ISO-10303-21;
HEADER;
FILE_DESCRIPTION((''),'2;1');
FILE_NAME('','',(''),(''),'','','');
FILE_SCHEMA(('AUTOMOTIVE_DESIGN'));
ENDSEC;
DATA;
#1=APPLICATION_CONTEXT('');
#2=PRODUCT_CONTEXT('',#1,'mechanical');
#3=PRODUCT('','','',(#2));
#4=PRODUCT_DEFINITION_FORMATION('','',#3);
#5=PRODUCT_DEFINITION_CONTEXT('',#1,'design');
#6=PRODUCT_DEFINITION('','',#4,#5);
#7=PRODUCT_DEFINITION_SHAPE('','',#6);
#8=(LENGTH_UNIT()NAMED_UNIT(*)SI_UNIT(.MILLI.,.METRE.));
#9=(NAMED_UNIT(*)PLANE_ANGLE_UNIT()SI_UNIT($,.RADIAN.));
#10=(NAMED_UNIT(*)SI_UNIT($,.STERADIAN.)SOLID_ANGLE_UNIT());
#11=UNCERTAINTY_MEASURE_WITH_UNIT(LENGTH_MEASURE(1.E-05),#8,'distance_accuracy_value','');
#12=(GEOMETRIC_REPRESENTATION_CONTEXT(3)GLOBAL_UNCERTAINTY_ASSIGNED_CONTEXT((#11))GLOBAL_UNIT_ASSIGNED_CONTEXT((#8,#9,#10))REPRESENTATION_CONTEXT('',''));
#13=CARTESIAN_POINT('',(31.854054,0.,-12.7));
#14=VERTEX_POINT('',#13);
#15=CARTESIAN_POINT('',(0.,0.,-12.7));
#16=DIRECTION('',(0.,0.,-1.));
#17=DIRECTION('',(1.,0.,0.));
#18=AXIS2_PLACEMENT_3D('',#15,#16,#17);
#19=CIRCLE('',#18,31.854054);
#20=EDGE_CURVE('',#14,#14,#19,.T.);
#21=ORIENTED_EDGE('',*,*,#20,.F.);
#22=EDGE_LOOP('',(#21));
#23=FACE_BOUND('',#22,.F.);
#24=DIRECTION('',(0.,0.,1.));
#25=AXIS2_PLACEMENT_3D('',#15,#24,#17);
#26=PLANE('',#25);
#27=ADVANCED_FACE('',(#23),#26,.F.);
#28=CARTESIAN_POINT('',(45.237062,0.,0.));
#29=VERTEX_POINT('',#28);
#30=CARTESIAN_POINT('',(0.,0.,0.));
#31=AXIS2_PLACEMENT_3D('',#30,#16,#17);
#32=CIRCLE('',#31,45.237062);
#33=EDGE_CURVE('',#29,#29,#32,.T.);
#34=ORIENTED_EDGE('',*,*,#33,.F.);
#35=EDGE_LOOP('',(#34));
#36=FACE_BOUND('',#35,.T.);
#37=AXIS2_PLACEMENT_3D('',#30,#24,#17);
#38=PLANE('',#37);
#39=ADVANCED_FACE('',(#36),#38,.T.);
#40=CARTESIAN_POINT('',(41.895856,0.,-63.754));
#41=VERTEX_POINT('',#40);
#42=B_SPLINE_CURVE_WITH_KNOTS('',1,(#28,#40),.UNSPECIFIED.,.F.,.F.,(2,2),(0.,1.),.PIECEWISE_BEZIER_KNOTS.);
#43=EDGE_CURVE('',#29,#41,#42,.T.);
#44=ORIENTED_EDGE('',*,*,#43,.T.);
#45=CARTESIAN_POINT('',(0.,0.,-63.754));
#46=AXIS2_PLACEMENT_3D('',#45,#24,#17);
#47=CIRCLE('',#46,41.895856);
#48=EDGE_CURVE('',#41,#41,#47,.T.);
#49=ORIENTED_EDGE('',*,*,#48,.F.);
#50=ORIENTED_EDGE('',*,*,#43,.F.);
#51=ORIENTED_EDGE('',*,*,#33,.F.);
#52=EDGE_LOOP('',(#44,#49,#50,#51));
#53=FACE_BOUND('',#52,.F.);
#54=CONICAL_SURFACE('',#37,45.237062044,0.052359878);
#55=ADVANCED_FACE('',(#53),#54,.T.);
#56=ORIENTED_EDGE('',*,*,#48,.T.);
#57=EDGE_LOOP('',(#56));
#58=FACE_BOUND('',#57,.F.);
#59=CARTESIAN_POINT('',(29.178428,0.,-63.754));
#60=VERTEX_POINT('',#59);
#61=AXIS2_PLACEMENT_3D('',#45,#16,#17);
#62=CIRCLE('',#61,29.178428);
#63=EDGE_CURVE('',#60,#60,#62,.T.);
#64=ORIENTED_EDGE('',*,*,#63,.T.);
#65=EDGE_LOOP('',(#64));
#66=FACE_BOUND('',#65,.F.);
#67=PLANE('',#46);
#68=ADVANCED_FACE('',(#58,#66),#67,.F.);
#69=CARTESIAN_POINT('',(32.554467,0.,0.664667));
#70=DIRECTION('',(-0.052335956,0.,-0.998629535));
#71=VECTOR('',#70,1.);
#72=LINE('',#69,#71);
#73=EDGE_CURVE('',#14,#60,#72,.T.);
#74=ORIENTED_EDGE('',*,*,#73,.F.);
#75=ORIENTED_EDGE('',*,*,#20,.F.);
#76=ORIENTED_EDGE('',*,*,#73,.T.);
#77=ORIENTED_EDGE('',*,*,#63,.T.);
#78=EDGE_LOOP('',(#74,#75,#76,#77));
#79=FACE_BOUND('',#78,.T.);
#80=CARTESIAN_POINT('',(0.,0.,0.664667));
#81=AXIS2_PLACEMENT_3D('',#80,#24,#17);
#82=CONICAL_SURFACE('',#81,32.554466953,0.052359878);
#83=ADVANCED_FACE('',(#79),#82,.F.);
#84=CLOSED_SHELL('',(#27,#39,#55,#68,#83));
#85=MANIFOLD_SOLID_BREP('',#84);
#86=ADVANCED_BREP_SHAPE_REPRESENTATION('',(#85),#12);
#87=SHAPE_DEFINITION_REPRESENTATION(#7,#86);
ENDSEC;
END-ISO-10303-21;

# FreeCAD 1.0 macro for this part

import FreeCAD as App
import Part
import Sketcher
Q = App.Units.Quantity


def faces_at(feature, points):
    """Names of the faces that lie closest to the given points."""
    faces = feature.Shape.Faces
    near = lambda p: min(range(len(faces)), key=lambda i: faces[i].distToShape(Part.Vertex(*p))[0])
    return sorted({f"Face{near(p) + 1}" for p in points})

doc = App.newDocument("Part")
body = doc.addObject("PartDesign::Body", "Body")

# Sketch on XY plane
sketch1 = body.newObject("Sketcher::SketchObject", "Sketch")
sketch1.AttachmentSupport = (doc.getObject("XY_Plane"), [""])
sketch1.MapMode = "FlatFace"
sketch1.addGeometry(Part.Circle(App.Vector(0, 0, 0), App.Vector(0, 0, 1), 45), False)
sketch1.addConstraint([
    Sketcher.Constraint("Coincident", 0, 3, -1, 1),
    Sketcher.Constraint("Diameter", 0, Q("90.474124 mm")),
])
pad1 = body.newObject("PartDesign::Pad", "Pad")
pad1.Profile = sketch1
pad1.Length = Q("2.51 in")
pad1.Reversed = True
pad1.TaperAngle = -3
doc.recompute()

thickness = body.newObject("PartDesign::Thickness", "Thickness")
thickness.Base = (pad1, faces_at(pad1, [(0, 0, -63.754)]))
thickness.Value = Q("0.5 in")
thickness.Reversed = True
thickness.Join = "Intersection"

doc.recompute()
